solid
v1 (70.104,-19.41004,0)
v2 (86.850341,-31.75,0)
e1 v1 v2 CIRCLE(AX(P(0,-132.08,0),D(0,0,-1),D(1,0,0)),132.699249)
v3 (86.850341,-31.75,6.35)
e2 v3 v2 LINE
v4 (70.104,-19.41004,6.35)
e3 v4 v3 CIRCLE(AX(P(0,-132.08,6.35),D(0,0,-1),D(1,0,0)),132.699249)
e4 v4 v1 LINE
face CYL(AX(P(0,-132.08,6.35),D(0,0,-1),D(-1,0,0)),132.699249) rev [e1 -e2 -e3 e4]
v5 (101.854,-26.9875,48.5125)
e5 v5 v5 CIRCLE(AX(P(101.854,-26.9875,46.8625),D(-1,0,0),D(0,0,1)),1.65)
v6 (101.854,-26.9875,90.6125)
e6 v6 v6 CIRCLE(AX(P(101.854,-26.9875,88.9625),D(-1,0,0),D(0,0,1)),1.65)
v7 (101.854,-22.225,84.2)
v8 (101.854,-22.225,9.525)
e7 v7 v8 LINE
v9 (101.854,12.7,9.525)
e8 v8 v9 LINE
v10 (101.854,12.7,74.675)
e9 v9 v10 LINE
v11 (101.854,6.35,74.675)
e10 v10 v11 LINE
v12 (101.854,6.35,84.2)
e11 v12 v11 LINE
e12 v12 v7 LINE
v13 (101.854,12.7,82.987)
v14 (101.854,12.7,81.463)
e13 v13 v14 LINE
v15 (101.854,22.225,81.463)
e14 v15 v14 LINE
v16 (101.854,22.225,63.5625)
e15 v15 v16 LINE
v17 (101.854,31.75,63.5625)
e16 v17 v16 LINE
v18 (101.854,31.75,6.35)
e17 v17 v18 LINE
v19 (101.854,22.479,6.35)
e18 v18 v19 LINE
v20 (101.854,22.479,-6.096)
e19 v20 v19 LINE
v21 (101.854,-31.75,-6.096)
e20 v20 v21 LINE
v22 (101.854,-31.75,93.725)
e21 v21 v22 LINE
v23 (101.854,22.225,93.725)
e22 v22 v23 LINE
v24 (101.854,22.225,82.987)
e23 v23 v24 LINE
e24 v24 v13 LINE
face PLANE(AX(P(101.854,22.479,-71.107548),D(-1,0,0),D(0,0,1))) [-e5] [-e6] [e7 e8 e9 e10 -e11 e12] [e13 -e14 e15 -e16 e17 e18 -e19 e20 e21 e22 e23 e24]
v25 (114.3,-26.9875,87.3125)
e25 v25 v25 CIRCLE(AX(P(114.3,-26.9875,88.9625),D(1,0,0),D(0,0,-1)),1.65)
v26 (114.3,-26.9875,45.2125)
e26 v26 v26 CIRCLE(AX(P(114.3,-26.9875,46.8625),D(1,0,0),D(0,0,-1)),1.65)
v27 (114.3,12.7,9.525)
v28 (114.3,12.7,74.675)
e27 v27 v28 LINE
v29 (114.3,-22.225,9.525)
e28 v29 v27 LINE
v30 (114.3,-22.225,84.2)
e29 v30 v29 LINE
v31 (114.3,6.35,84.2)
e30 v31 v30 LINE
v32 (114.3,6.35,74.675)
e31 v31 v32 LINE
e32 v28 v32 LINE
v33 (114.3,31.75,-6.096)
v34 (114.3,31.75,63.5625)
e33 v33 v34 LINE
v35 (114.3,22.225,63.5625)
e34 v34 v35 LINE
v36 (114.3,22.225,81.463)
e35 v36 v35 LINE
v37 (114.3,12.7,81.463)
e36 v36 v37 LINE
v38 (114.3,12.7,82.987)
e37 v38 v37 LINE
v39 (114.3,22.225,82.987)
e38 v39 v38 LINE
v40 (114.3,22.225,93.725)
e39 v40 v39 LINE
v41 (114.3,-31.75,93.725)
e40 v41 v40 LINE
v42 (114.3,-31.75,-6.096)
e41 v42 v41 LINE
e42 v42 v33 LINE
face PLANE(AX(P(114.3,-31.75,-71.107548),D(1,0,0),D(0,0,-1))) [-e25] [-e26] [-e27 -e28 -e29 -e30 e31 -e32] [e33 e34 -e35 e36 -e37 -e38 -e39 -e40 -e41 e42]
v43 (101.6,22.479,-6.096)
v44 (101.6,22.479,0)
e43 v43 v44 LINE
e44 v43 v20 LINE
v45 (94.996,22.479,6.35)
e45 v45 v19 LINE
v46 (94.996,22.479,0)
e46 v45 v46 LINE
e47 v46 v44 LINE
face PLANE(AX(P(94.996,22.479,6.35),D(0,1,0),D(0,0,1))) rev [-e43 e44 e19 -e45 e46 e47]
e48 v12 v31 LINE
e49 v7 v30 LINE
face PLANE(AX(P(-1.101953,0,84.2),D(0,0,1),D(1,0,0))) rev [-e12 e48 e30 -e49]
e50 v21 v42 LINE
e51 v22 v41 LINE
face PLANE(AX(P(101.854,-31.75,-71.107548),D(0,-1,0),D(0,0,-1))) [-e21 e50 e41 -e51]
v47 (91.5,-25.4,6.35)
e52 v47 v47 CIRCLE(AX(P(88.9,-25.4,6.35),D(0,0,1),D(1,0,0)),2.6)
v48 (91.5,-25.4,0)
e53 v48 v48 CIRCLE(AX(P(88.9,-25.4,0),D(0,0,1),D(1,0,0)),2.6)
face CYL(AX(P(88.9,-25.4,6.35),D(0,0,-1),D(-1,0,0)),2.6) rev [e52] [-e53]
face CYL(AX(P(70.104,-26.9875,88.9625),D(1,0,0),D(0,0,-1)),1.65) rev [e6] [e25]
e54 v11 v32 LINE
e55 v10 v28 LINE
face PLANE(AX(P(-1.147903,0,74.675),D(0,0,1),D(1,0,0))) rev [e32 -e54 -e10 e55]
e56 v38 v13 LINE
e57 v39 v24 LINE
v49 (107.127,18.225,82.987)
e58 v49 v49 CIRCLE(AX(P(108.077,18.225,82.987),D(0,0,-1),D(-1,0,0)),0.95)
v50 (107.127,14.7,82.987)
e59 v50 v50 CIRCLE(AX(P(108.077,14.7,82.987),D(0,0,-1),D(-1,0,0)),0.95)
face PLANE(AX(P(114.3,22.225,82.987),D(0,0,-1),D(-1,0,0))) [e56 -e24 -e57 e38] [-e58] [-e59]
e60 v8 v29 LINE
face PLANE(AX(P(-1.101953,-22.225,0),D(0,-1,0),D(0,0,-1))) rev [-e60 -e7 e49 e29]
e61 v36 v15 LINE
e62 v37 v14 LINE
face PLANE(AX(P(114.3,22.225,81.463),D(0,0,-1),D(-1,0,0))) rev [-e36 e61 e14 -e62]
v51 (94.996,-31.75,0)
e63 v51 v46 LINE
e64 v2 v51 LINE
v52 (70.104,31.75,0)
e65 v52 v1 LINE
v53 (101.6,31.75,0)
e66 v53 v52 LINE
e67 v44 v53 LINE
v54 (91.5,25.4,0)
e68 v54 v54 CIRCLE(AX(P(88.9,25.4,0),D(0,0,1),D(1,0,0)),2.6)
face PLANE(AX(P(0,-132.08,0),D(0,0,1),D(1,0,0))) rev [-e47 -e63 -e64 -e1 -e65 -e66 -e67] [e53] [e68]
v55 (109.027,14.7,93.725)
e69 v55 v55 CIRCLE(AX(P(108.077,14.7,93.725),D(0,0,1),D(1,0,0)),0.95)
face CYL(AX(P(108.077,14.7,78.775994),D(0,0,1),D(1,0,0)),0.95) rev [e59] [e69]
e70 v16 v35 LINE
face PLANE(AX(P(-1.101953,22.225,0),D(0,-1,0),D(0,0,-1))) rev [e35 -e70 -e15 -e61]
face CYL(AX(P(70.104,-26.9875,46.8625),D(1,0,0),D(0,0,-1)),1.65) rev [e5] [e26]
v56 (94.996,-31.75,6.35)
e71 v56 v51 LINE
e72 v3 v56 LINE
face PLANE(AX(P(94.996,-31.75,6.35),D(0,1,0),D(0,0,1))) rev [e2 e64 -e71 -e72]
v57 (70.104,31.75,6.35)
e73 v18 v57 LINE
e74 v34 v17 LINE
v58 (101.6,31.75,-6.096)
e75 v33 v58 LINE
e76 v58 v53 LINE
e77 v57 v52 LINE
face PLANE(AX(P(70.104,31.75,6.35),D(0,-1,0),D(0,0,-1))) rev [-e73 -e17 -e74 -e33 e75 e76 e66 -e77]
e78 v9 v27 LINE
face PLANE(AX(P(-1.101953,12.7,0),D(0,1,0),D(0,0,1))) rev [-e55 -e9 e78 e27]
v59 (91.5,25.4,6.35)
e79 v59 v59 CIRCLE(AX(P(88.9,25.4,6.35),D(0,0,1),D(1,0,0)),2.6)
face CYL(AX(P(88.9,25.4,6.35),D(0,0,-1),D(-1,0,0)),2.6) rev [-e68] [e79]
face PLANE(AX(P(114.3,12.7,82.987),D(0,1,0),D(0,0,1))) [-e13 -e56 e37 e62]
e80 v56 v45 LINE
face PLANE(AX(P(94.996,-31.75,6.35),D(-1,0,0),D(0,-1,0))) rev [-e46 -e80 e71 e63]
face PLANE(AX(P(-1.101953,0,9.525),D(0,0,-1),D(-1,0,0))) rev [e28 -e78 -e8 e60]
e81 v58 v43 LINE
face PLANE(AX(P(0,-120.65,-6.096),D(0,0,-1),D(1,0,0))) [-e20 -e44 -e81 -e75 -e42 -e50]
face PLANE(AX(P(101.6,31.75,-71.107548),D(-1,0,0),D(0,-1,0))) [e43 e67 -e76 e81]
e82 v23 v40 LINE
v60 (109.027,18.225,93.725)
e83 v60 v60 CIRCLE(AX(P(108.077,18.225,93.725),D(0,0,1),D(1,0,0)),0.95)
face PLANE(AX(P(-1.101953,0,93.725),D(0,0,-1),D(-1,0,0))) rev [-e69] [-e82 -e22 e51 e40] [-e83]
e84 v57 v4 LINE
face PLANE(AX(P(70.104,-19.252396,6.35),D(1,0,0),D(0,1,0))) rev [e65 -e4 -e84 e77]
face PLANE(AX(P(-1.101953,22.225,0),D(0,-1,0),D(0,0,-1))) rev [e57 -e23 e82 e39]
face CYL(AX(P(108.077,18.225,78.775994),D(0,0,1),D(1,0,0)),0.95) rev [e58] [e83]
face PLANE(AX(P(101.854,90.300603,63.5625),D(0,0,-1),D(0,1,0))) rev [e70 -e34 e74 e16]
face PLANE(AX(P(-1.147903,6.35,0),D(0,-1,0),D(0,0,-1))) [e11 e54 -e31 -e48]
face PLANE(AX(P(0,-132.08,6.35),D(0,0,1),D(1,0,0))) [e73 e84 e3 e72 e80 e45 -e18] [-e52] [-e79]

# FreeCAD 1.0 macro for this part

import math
import FreeCAD as App
import Part
import Sketcher
Q = App.Units.Quantity


def add_polygon(sketch, points):
    """Adds a closed chain of lines whose ends are joined by coincident constraints."""
    first, n = sketch.GeometryCount, len(points)
    for a, b in zip(points, points[1:] + points[:1]):
        sketch.addGeometry(Part.LineSegment(App.Vector(*a, 0), App.Vector(*b, 0)), False)
    for i in range(n):
        sketch.addConstraint(Sketcher.Constraint("Coincident", first + i, 2, first + (i + 1) % n, 1))

doc = App.newDocument("Part")
params = doc.addObject("Spreadsheet::Sheet", "Params")
for row, (alias, value) in enumerate([
    ("sketch1_width", "0.26 in"),
    ("sketch1_width2", "1.24 in"),
    ("sketch1_height", "2.135 in"),
    ("pad1_length", "0.25 in"),
    ("sketch2_width", "0.5 in"),
    ("sketch2_height", "2.5 in"),
    ("sketch2_width2", "0.01 in"),
    ("sketch2_height2", "2.135 in"),
    ("pad2_length", "0.49 in"),
    ("sketch3_width", "2.125 in"),
    ("sketch3_width2", "1.375 in"),
    ("pad3_length", "0.49 in"),
    ("sketch4_width", "0.49 in"),
    ("pad4_length", "0.375 in"),
    ("sketch6_width", "0.25 in"),
    ("sketch6_height", "0.375 in"),
    ("pad5_length", "0.49 in"),
    ("sketch7_height", "0.06 in"),
    ("sketch7_width", "0.375 in"),
    ("pocket3_length", "12.262 mm"),
], start=1):
    params.set(f"A{row}", alias)
    params.set(f"B{row}", "=" + value)
    params.setAlias(f"B{row}", alias)

body = doc.addObject("PartDesign::Body", "Body")

# Sketch on XY plane
sketch1 = body.newObject("Sketcher::SketchObject", "Sketch")
sketch1.AttachmentSupport = (doc.getObject("XY_Plane"), [""])
sketch1.MapMode = "FlatFace"
sketch1.addGeometry(Part.LineSegment(App.Vector(86.9, -31.8, 0), App.Vector(95, -31.8, 0)), False)
sketch1.addGeometry(Part.LineSegment(App.Vector(95, -31.8, 0), App.Vector(95, 22.5, 0)), False)
sketch1.addGeometry(Part.LineSegment(App.Vector(95, 22.5, 0), App.Vector(101.6, 22.5, 0)), False)
sketch1.addGeometry(Part.LineSegment(App.Vector(101.6, 22.5, 0), App.Vector(101.6, 31.8, 0)), False)
sketch1.addGeometry(Part.LineSegment(App.Vector(101.6, 31.8, 0), App.Vector(70.1, 31.8, 0)), False)
sketch1.addGeometry(Part.LineSegment(App.Vector(70.1, 31.8, 0), App.Vector(70.1, -19.4, 0)), False)
sketch1.addGeometry(Part.ArcOfCircle(Part.Circle(App.Vector(0, -132.1, 0), App.Vector(0, 0, 1), 132.7), math.radians(49.12), math.radians(58.11)), False)
sketch1.addGeometry(Part.Circle(App.Vector(88.9, -25.4, 0), App.Vector(0, 0, 1), 2.6), False)
sketch1.addGeometry(Part.Circle(App.Vector(88.9, 25.4, 0), App.Vector(0, 0, 1), 2.6), False)
sketch1.addConstraint(Sketcher.Constraint("Coincident", 0, 2, 1, 1))
sketch1.addConstraint(Sketcher.Constraint("Coincident", 1, 2, 2, 1))
sketch1.addConstraint(Sketcher.Constraint("Coincident", 2, 2, 3, 1))
sketch1.addConstraint(Sketcher.Constraint("Coincident", 3, 2, 4, 1))
sketch1.addConstraint(Sketcher.Constraint("Coincident", 4, 2, 5, 1))
sketch1.addConstraint(Sketcher.Constraint("Coincident", 5, 2, 6, 2))
sketch1.addConstraint(Sketcher.Constraint("Coincident", 6, 1, 0, 1))
sketch1.addConstraint(Sketcher.Constraint("Horizontal", 0))
sketch1.addConstraint(Sketcher.Constraint("Vertical", 1))
sketch1.addConstraint(Sketcher.Constraint("Horizontal", 2))
sketch1.addConstraint(Sketcher.Constraint("Vertical", 3))
sketch1.addConstraint(Sketcher.Constraint("Horizontal", 4))
sketch1.addConstraint(Sketcher.Constraint("Vertical", 5))
sketch1.addConstraint(Sketcher.Constraint("Equal", 7, 8))
sketch1.addConstraint(Sketcher.Constraint("Symmetric", 7, 3, 8, 3, -1))
sketch1.addConstraint(Sketcher.Constraint("PointOnObject", 6, 3, -2))
sketch1.addConstraint(Sketcher.Constraint("DistanceY", 7, 3, -1, 1, Q("1 in")))
sketch1.addConstraint(Sketcher.Constraint("DistanceX", -1, 1, 2, 2, Q("4 in")))
sketch1.addConstraint(Sketcher.Constraint("DistanceX", 2, 1, 2, 2, Q("0.26 in")))
sketch1.addConstraint(Sketcher.Constraint("DistanceX", 4, 2, 4, 1, Q("1.24 in")))
sketch1.addConstraint(Sketcher.Constraint("DistanceY", 6, 3, -1, 1, Q("5.2 in")))
sketch1.addConstraint(Sketcher.Constraint("DistanceX", -1, 1, 7, 3, Q("3.5 in")))
sketch1.addConstraint(Sketcher.Constraint("DistanceY", 0, 2, 3, 2, Q("2.5 in")))
sketch1.addConstraint(Sketcher.Constraint("Diameter", 7, 5.2))
sketch1.addConstraint(Sketcher.Constraint("DistanceY", 1, 1, 1, 2, Q("2.135 in")))
sketch1.addConstraint(Sketcher.Constraint("DistanceY", 0, 2, -1, 1, Q("1.25 in")))
sketch1.addConstraint(Sketcher.Constraint("Radius", 6, 132.699249))
sketch1.setExpression("Constraints[18]", "Params.sketch1_width")
sketch1.setExpression("Constraints[19]", "Params.sketch1_width2")
sketch1.setExpression("Constraints[24]", "Params.sketch1_height")
pad1 = body.newObject("PartDesign::Pad", "Pad")
pad1.Profile = sketch1
pad1.setExpression("Length", "Params.pad1_length")

# Sketch on XY plane
sketch2 = body.newObject("Sketcher::SketchObject", "Sketch001")
sketch2.AttachmentSupport = (doc.getObject("XY_Plane"), [""])
sketch2.MapMode = "FlatFace"
sketch2.AttachmentOffset = App.Placement(App.Vector(0, 0, 0.25 * 25.4), App.Rotation())
add_polygon(sketch2, [(101.6, 22.48), (101.85, 22.48), (101.85, -31.75), (114.3, -31.75), (114.3, 31.75), (101.6, 31.75)])  # lines 0-5
sketch2.addConstraint(Sketcher.Constraint("Horizontal", 0))
sketch2.addConstraint(Sketcher.Constraint("Vertical", 1))
sketch2.addConstraint(Sketcher.Constraint("Horizontal", 2))
sketch2.addConstraint(Sketcher.Constraint("Vertical", 3))
sketch2.addConstraint(Sketcher.Constraint("Horizontal", 4))
sketch2.addConstraint(Sketcher.Constraint("Vertical", 5))
sketch2.addConstraint(Sketcher.Constraint("DistanceX", 4, 2, 4, 1, Q("0.5 in")))
sketch2.addConstraint(Sketcher.Constraint("DistanceY", 3, 1, 3, 2, Q("2.5 in")))
sketch2.addConstraint(Sketcher.Constraint("DistanceX", -1, 1, 4, 2, Q("4 in")))
sketch2.addConstraint(Sketcher.Constraint("DistanceX", 0, 1, 0, 2, Q("0.01 in")))
sketch2.addConstraint(Sketcher.Constraint("DistanceY", 1, 2, 1, 1, Q("2.135 in")))
sketch2.addConstraint(Sketcher.Constraint("DistanceY", 1, 2, -1, 1, Q("1.25 in")))
sketch2.setExpression("Constraints[12]", "Params.sketch2_width")
sketch2.setExpression("Constraints[13]", "Params.sketch2_height")
sketch2.setExpression("Constraints[15]", "Params.sketch2_width2")
sketch2.setExpression("Constraints[16]", "Params.sketch2_height2")
pad2 = body.newObject("PartDesign::Pad", "Pad001")
pad2.Profile = sketch2
pad2.setExpression("Length", "Params.pad2_length")
pad2.Reversed = True

# Sketch on YZ plane
sketch3 = body.newObject("Sketcher::SketchObject", "Sketch002")
sketch3.AttachmentSupport = (doc.getObject("YZ_Plane"), [""])
sketch3.MapMode = "FlatFace"
sketch3.AttachmentOffset = App.Placement(App.Vector(0, 0, 4.5 * 25.4), App.Rotation())
add_polygon(sketch3, [(-32, 6), (22, 6), (22, 94), (-32, 94)])  # lines 0-3
add_polygon(sketch3, [(-22, 10), (-22, 84), (13, 84), (13, 10)])  # lines 4-7
sketch3.addConstraint(Sketcher.Constraint("Horizontal", 0))
sketch3.addConstraint(Sketcher.Constraint("Vertical", 1))
sketch3.addConstraint(Sketcher.Constraint("Horizontal", 2))
sketch3.addConstraint(Sketcher.Constraint("Vertical", 3))
sketch3.addConstraint(Sketcher.Constraint("Vertical", 4))
sketch3.addConstraint(Sketcher.Constraint("Horizontal", 5))
sketch3.addConstraint(Sketcher.Constraint("Vertical", 6))
sketch3.addConstraint(Sketcher.Constraint("Horizontal", 7))
sketch3.addConstraint(Sketcher.Constraint("DistanceX", -1, 1, 5, 2, Q("0.5 in")))
sketch3.addConstraint(Sketcher.Constraint("DistanceX", 0, 1, 0, 2, Q("2.125 in")))
sketch3.addConstraint(Sketcher.Constraint("DistanceX", 5, 1, 5, 2, Q("1.375 in")))
sketch3.addConstraint(Sketcher.Constraint("DistanceY", -1, 1, 0, 2, Q("0.25 in")))
sketch3.addConstraint(Sketcher.Constraint("DistanceX", 2, 2, -1, 1, Q("1.25 in")))
sketch3.addConstraint(Sketcher.Constraint("DistanceY", -1, 1, 6, 2, Q("0.375 in")))
sketch3.addConstraint(Sketcher.Constraint("DistanceY", 4, 2, 2, 2, Q("0.375 in")))
sketch3.addConstraint(Sketcher.Constraint("DistanceY", 1, 1, 1, 2, 87.375))
sketch3.setExpression("Constraints[17]", "Params.sketch3_width")
sketch3.setExpression("Constraints[18]", "Params.sketch3_width2")
pad3 = body.newObject("PartDesign::Pad", "Pad002")
pad3.Profile = sketch3
pad3.setExpression("Length", "Params.pad3_length")
pad3.Reversed = True

# Sketch on XZ plane
sketch4 = body.newObject("Sketcher::SketchObject", "Sketch003")
sketch4.AttachmentSupport = (doc.getObject("XZ_Plane"), [""])
sketch4.MapMode = "FlatFace"
sketch4.AttachmentOffset = App.Placement(App.Vector(0, 0, -0.875 * 25.4), App.Rotation())
add_polygon(sketch4, [(102, 6), (102, 64), (114, 64), (114, 6)])  # lines 0-3
sketch4.addConstraint(Sketcher.Constraint("Vertical", 0))
sketch4.addConstraint(Sketcher.Constraint("Horizontal", 1))
sketch4.addConstraint(Sketcher.Constraint("Vertical", 2))
sketch4.addConstraint(Sketcher.Constraint("Horizontal", 3))
sketch4.addConstraint(Sketcher.Constraint("DistanceX", 1, 1, 1, 2, Q("0.49 in")))
sketch4.addConstraint(Sketcher.Constraint("DistanceX", -1, 1, 1, 2, Q("4.5 in")))
sketch4.addConstraint(Sketcher.Constraint("DistanceY", -1, 1, 2, 2, Q("0.25 in")))
sketch4.addConstraint(Sketcher.Constraint("DistanceY", 0, 1, 0, 2, 57.2125))
sketch4.setExpression("Constraints[8]", "Params.sketch4_width")
pad4 = body.newObject("PartDesign::Pad", "Pad003")
pad4.Profile = sketch4
pad4.setExpression("Length", "Params.pad4_length")
pad4.Reversed = True

# Sketch on YZ plane
sketch5 = body.newObject("Sketcher::SketchObject", "Sketch004")
sketch5.AttachmentSupport = (doc.getObject("YZ_Plane"), [""])
sketch5.MapMode = "FlatFace"
sketch5.AttachmentOffset = App.Placement(App.Vector(0, 0, 4.5 * 25.4), App.Rotation())
sketch5.addGeometry(Part.Circle(App.Vector(-27, 89, 0), App.Vector(0, 0, 1), 1.7), False)
sketch5.addGeometry(Part.Circle(App.Vector(-27, 46.9, 0), App.Vector(0, 0, 1), 1.7), False)
sketch5.addConstraint(Sketcher.Constraint("Equal", 0, 1))
sketch5.addConstraint(Sketcher.Constraint("Vertical", 0, 3, 1, 3))
sketch5.addConstraint(Sketcher.Constraint("Diameter", 0, 3.3))
sketch5.addConstraint(Sketcher.Constraint("DistanceX", 0, 3, -1, 1, Q("1.0625 in")))
sketch5.addConstraint(Sketcher.Constraint("DistanceY", -1, 1, 0, 3, 88.9625))
sketch5.addConstraint(Sketcher.Constraint("DistanceY", -1, 1, 1, 3, 46.8625))
pocket1 = body.newObject("PartDesign::Pocket", "Pocket")
pocket1.Profile = sketch5
pocket1.Type = "ThroughAll"
pocket1.Midplane = True

# Sketch on YZ plane
sketch6 = body.newObject("Sketcher::SketchObject", "Sketch005")
sketch6.AttachmentSupport = (doc.getObject("YZ_Plane"), [""])
sketch6.MapMode = "FlatFace"
sketch6.AttachmentOffset = App.Placement(App.Vector(0, 0, 4.5 * 25.4), App.Rotation())
add_polygon(sketch6, [(13, 84), (6, 84), (6, 75), (13, 75)])  # lines 0-3
sketch6.addConstraint(Sketcher.Constraint("Horizontal", 0))
sketch6.addConstraint(Sketcher.Constraint("Vertical", 1))
sketch6.addConstraint(Sketcher.Constraint("Horizontal", 2))
sketch6.addConstraint(Sketcher.Constraint("Vertical", 3))
sketch6.addConstraint(Sketcher.Constraint("DistanceX", 0, 2, 0, 1, Q("0.25 in")))
sketch6.addConstraint(Sketcher.Constraint("DistanceX", -1, 1, 2, 2, Q("0.5 in")))
sketch6.addConstraint(Sketcher.Constraint("DistanceY", 1, 2, 1, 1, Q("0.375 in")))
sketch6.addConstraint(Sketcher.Constraint("DistanceY", -1, 1, 0, 2, 84.2))
sketch6.setExpression("Constraints[8]", "Params.sketch6_width")
sketch6.setExpression("Constraints[10]", "Params.sketch6_height")
pad5 = body.newObject("PartDesign::Pad", "Pad004")
pad5.Profile = sketch6
pad5.setExpression("Length", "Params.pad5_length")
pad5.Reversed = True

# Sketch on YZ plane
sketch7 = body.newObject("Sketcher::SketchObject", "Sketch006")
sketch7.AttachmentSupport = (doc.getObject("YZ_Plane"), [""])
sketch7.MapMode = "FlatFace"
sketch7.AttachmentOffset = App.Placement(App.Vector(0, 0, 4.01 * 25.4), App.Rotation())
add_polygon(sketch7, [(22.2, 81.5), (12.7, 81.5), (12.7, 83), (22.2, 83)])  # lines 0-3
sketch7.addConstraint(Sketcher.Constraint("Horizontal", 0))
sketch7.addConstraint(Sketcher.Constraint("Vertical", 1))
sketch7.addConstraint(Sketcher.Constraint("Horizontal", 2))
sketch7.addConstraint(Sketcher.Constraint("Vertical", 3))
sketch7.addConstraint(Sketcher.Constraint("DistanceY", 1, 1, 1, 2, Q("0.06 in")))
sketch7.addConstraint(Sketcher.Constraint("DistanceX", -1, 1, 0, 2, Q("0.5 in")))
sketch7.addConstraint(Sketcher.Constraint("DistanceX", 0, 2, 0, 1, Q("0.375 in")))
sketch7.addConstraint(Sketcher.Constraint("DistanceY", -1, 1, 0, 2, 81.463))
sketch7.setExpression("Constraints[8]", "Params.sketch7_height")
sketch7.setExpression("Constraints[10]", "Params.sketch7_width")
pocket2 = body.newObject("PartDesign::Pocket", "Pocket001")
pocket2.Profile = sketch7
pocket2.Type = "ThroughAll"
pocket2.Midplane = True

# Sketch on XY plane
sketch8 = body.newObject("Sketcher::SketchObject", "Sketch007")
sketch8.AttachmentSupport = (doc.getObject("XY_Plane"), [""])
sketch8.MapMode = "FlatFace"
sketch8.AttachmentOffset = App.Placement(App.Vector(0, 0, 93.725), App.Rotation())
sketch8.addGeometry(Part.Circle(App.Vector(108.1, 14.7, 0), App.Vector(0, 0, 1), 1), False)
sketch8.addGeometry(Part.Circle(App.Vector(108.1, 18.2, 0), App.Vector(0, 0, 1), 1), False)
sketch8.addConstraint(Sketcher.Constraint("Equal", 0, 1))
sketch8.addConstraint(Sketcher.Constraint("Vertical", 0, 3, 1, 3))
sketch8.addConstraint(Sketcher.Constraint("Diameter", 0, 1.9))
sketch8.addConstraint(Sketcher.Constraint("DistanceX", -1, 1, 0, 3, Q("4.255 in")))
sketch8.addConstraint(Sketcher.Constraint("DistanceY", -1, 1, 0, 3, 14.7))
sketch8.addConstraint(Sketcher.Constraint("DistanceY", -1, 1, 1, 3, 18.225))
pocket3 = body.newObject("PartDesign::Pocket", "Pocket002")
pocket3.Profile = sketch8
pocket3.setExpression("Length", "Params.pocket3_length")

doc.recompute()
